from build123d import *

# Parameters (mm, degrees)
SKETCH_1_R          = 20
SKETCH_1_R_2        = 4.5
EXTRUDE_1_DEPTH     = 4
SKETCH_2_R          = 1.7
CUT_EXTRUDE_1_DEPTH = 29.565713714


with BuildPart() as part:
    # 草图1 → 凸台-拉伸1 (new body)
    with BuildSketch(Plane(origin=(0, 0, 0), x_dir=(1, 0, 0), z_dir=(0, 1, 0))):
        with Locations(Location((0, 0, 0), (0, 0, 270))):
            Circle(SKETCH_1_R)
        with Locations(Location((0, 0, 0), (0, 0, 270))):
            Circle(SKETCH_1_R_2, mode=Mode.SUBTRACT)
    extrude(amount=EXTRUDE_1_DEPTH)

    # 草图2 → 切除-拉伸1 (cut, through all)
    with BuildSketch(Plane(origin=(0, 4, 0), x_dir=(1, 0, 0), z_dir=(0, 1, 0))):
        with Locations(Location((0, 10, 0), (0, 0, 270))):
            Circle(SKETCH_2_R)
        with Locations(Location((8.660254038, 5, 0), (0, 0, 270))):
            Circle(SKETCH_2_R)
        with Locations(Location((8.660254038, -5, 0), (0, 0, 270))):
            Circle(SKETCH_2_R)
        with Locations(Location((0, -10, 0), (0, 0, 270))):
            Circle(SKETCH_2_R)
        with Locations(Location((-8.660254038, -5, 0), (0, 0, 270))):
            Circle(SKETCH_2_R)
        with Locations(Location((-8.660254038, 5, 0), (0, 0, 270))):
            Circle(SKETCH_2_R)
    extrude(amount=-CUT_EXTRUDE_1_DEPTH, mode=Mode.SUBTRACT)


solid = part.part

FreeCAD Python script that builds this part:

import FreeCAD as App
import Part
import Sketcher

V = App.Vector

doc = App.newDocument("Part")
params = doc.addObject("Spreadsheet::Sheet", "Params")
for row, (alias, value) in enumerate([
    ("sketch1_diameter", "40 mm"),
    ("sketch1_diameter2", "9 mm"),
    ("pad1_length", "4 mm"),
    ("sketch2_diameter", "3.4 mm"),
], start=1):
    params.set(f"A{row}", alias)
    params.set(f"B{row}", "=" + value)
    params.setAlias(f"B{row}", alias)

body = doc.addObject("PartDesign::Body", "Body")

sketch1 = body.newObject("Sketcher::SketchObject", "Sketch")
sketch1.AttachmentSupport = (doc.getObject("XZ_Plane"), [""])
sketch1.MapMode = "FlatFace"
sketch1.addGeometry(Part.Circle(V(0, 0, 0), V(0, 0, 1), 20), False)
sketch1.addGeometry(Part.Circle(V(0, 0, 0), V(0, 0, 1), 4.5), False)
sketch1.addConstraint(Sketcher.Constraint("Coincident", 0, 3, -1, 1))
sketch1.addConstraint(Sketcher.Constraint("Coincident", 1, 3, -1, 1))
sketch1.addConstraint(Sketcher.Constraint("Diameter", 0, 40.0))
sketch1.addConstraint(Sketcher.Constraint("Diameter", 1, 9.0))
sketch1.setExpression("Constraints[2]", "Params.sketch1_diameter")
sketch1.setExpression("Constraints[3]", "Params.sketch1_diameter2")
pad1 = body.newObject("PartDesign::Pad", "Pad")
pad1.Profile = sketch1
pad1.setExpression("Length", "Params.pad1_length")
pad1.Reversed = True

sketch2 = body.newObject("Sketcher::SketchObject", "Sketch001")
sketch2.AttachmentSupport = (doc.getObject("XZ_Plane"), [""])
sketch2.MapMode = "FlatFace"
sketch2.AttachmentOffset = App.Placement(V(0, 0, -4), App.Rotation())
sketch2.addGeometry(Part.Circle(V(0, -10, 0), V(0, 0, 1), 1.7), False)
sketch2.addGeometry(Part.Circle(V(8.7, -5, 0), V(0, 0, 1), 1.7), False)
sketch2.addGeometry(Part.Circle(V(8.7, 5, 0), V(0, 0, 1), 1.7), False)
sketch2.addGeometry(Part.Circle(V(0, 10, 0), V(0, 0, 1), 1.7), False)
sketch2.addGeometry(Part.Circle(V(-8.7, 5, 0), V(0, 0, 1), 1.7), False)
sketch2.addGeometry(Part.Circle(V(-8.7, -5, 0), V(0, 0, 1), 1.7), False)
sketch2.addConstraint(Sketcher.Constraint("Equal", 0, 1))
sketch2.addConstraint(Sketcher.Constraint("Equal", 1, 2))
sketch2.addConstraint(Sketcher.Constraint("Equal", 2, 3))
sketch2.addConstraint(Sketcher.Constraint("Equal", 3, 4))
sketch2.addConstraint(Sketcher.Constraint("Equal", 4, 5))
sketch2.addConstraint(Sketcher.Constraint("Symmetric", 0, 3, 3, 3, -1, 1))
sketch2.addConstraint(Sketcher.Constraint("Symmetric", 1, 3, 4, 3, -1, 1))
sketch2.addConstraint(Sketcher.Constraint("Symmetric", 2, 3, 5, 3, -1, 1))
sketch2.addConstraint(Sketcher.Constraint("Symmetric", 2, 3, 4, 3, -2))
sketch2.addConstraint(Sketcher.Constraint("PointOnObject", 0, 3, -2))
sketch2.addConstraint(Sketcher.Constraint("Diameter", 0, 3.4))
sketch2.addConstraint(Sketcher.Constraint("DistanceY", 0, 3, -1, 1, 10.0))
sketch2.addConstraint(Sketcher.Constraint("DistanceY", 1, 3, -1, 1, 5.0))
sketch2.addConstraint(Sketcher.Constraint("DistanceX", 4, 3, 2, 3, 17.320508))
sketch2.setExpression("Constraints[10]", "Params.sketch2_diameter")
pocket1 = body.newObject("PartDesign::Pocket", "Pocket")
pocket1.Profile = sketch2
pocket1.Type = "ThroughAll"
pocket1.Reversed = True

doc.recompute()
